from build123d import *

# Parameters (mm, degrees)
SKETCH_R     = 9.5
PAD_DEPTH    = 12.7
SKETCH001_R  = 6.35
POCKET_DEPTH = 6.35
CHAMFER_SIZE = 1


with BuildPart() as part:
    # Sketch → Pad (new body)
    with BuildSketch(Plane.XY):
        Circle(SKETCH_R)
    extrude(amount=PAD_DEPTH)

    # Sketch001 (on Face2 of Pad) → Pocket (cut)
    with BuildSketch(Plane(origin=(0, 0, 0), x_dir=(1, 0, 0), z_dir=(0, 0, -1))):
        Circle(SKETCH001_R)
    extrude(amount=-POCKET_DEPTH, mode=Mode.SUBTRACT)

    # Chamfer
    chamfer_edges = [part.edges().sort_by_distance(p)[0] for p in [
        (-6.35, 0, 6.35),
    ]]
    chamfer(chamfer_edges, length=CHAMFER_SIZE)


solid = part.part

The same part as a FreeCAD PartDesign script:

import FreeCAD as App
import Part
import Sketcher

V = App.Vector


def edges_at(feature, points):
    """Names of the edges that pass closest to the given points."""
    edges = feature.Shape.Edges
    near = lambda p: min(range(len(edges)), key=lambda i: edges[i].distToShape(Part.Vertex(*p))[0])
    return sorted({f"Edge{near(p) + 1}" for p in points})

doc = App.newDocument("Part")
body = doc.addObject("PartDesign::Body", "Body")

sketch1 = body.newObject("Sketcher::SketchObject", "Sketch")
sketch1.AttachmentSupport = (doc.getObject("XY_Plane"), [""])
sketch1.MapMode = "FlatFace"
sketch1.addGeometry(Part.Circle(V(0, 0, 0), V(0, 0, 1), 9.5), False)
sketch1.addConstraint([
    Sketcher.Constraint("Coincident", 0, 3, -1, 1),
    Sketcher.Constraint("Diameter", 0, 19.0),
])
pad1 = body.newObject("PartDesign::Pad", "Pad")
pad1.Profile = sketch1
pad1.Length = 12.7

sketch2 = body.newObject("Sketcher::SketchObject", "Sketch001")
sketch2.AttachmentSupport = (doc.getObject("XY_Plane"), [""])
sketch2.MapMode = "FlatFace"
sketch2.addGeometry(Part.Circle(V(0, 0, 0), V(0, 0, 1), 6.35), False)
sketch2.addConstraint([
    Sketcher.Constraint("Coincident", 0, 3, -1, 1),
    Sketcher.Constraint("Diameter", 0, 12.7),
])
pocket1 = body.newObject("PartDesign::Pocket", "Pocket")
pocket1.Profile = sketch2
pocket1.Length = 6.35
pocket1.Reversed = True
doc.recompute()

chamfer = body.newObject("PartDesign::Chamfer", "Chamfer")
chamfer.Base = (pocket1, edges_at(pocket1, [(-6.35, 0, 6.35)]))
chamfer.Size = 1

doc.recompute()
